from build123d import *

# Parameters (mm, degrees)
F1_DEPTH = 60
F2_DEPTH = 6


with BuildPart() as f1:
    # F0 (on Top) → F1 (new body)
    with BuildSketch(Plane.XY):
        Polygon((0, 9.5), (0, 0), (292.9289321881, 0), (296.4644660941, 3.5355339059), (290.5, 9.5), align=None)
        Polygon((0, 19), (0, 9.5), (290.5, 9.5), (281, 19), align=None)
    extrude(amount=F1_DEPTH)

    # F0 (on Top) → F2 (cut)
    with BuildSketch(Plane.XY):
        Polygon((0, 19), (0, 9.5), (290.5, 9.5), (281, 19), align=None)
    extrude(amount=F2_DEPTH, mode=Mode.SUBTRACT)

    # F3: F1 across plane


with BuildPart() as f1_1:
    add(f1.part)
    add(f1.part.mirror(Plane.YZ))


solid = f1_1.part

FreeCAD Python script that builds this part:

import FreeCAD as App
import Part
import Sketcher
Q = App.Units.Quantity


def add_polygon(sketch, points):
    """Adds a closed chain of lines whose ends are joined by coincident constraints."""
    first, n = sketch.GeometryCount, len(points)
    for a, b in zip(points, points[1:] + points[:1]):
        sketch.addGeometry(Part.LineSegment(App.Vector(*a, 0), App.Vector(*b, 0)), False)
    for i in range(n):
        sketch.addConstraint(Sketcher.Constraint("Coincident", first + i, 2, first + (i + 1) % n, 1))

doc = App.newDocument("Part")
body = doc.addObject("PartDesign::Body", "Body")

# Sketch on XY plane
sketch1 = body.newObject("Sketcher::SketchObject", "Sketch")
sketch1.AttachmentSupport = (doc.getObject("XY_Plane"), [""])
sketch1.MapMode = "FlatFace"
add_polygon(sketch1, [(0, 0), (293, 0), (296, 4), (281, 19), (0, 19)])  # lines 0-4
sketch1.addConstraint(Sketcher.Constraint("Horizontal", 0))
sketch1.addConstraint(Sketcher.Constraint("Horizontal", 3))
sketch1.addConstraint(Sketcher.Constraint("Vertical", 4))
sketch1.addConstraint(Sketcher.Constraint("Coincident", 4, 2, -1, 1))
sketch1.addConstraint(Sketcher.Constraint("Perpendicular", 1, 2))
sketch1.addConstraint(Sketcher.Constraint("DistanceX", 3, 2, 3, 1, 281.0))
sketch1.addConstraint(Sketcher.Constraint("DistanceY", 4, 2, 4, 1, 19.0))
sketch1.addConstraint(Sketcher.Constraint("Angle", 1, Q("45 deg")))
sketch1.addConstraint(Sketcher.Constraint("Distance", 1, 5.0))
pad1 = body.newObject("PartDesign::Pad", "Pad")
pad1.Profile = sketch1
pad1.Length = 60

# Sketch on XY plane
sketch2 = body.newObject("Sketcher::SketchObject", "Sketch001")
sketch2.AttachmentSupport = (doc.getObject("XY_Plane"), [""])
sketch2.MapMode = "FlatFace"
add_polygon(sketch2, [(0, 19), (0, 10), (290, 10), (281, 19)])  # lines 0-3
sketch2.addConstraint(Sketcher.Constraint("Vertical", 0))
sketch2.addConstraint(Sketcher.Constraint("Horizontal", 1))
sketch2.addConstraint(Sketcher.Constraint("Horizontal", 3))
sketch2.addConstraint(Sketcher.Constraint("PointOnObject", 0, 2, -2))
sketch2.addConstraint(Sketcher.Constraint("DistanceX", 3, 2, 3, 1, 281.0))
sketch2.addConstraint(Sketcher.Constraint("Angle", 2, Q("135 deg")))
sketch2.addConstraint(Sketcher.Constraint("DistanceX", 1, 1, 1, 2, 290.5))
sketch2.addConstraint(Sketcher.Constraint("DistanceY", -1, 1, 2, 2, 19.0))
pocket1 = body.newObject("PartDesign::Pocket", "Pocket")
pocket1.Profile = sketch2
pocket1.Length = 6
pocket1.Reversed = True
body2 = doc.addObject("PartDesign::Body", "Body001")
doc.recompute()

body2.BaseFeature = body
doc.recompute()

mirroring = doc.addObject("Part::Mirroring", "Mirroring")
mirroring.Source = body
mirroring.Base = App.Vector(0, 0, 0)
mirroring.Normal = App.Vector(1, 0, 0)
body3 = doc.addObject("PartDesign::Body", "Body002")
body3.BaseFeature = mirroring
boolean = body2.newObject("PartDesign::Boolean", "Boolean")
boolean.Type = "Fuse"
boolean.addObjects([body3])
doc.recompute()
mirroring.Visibility = False

doc.recompute()
